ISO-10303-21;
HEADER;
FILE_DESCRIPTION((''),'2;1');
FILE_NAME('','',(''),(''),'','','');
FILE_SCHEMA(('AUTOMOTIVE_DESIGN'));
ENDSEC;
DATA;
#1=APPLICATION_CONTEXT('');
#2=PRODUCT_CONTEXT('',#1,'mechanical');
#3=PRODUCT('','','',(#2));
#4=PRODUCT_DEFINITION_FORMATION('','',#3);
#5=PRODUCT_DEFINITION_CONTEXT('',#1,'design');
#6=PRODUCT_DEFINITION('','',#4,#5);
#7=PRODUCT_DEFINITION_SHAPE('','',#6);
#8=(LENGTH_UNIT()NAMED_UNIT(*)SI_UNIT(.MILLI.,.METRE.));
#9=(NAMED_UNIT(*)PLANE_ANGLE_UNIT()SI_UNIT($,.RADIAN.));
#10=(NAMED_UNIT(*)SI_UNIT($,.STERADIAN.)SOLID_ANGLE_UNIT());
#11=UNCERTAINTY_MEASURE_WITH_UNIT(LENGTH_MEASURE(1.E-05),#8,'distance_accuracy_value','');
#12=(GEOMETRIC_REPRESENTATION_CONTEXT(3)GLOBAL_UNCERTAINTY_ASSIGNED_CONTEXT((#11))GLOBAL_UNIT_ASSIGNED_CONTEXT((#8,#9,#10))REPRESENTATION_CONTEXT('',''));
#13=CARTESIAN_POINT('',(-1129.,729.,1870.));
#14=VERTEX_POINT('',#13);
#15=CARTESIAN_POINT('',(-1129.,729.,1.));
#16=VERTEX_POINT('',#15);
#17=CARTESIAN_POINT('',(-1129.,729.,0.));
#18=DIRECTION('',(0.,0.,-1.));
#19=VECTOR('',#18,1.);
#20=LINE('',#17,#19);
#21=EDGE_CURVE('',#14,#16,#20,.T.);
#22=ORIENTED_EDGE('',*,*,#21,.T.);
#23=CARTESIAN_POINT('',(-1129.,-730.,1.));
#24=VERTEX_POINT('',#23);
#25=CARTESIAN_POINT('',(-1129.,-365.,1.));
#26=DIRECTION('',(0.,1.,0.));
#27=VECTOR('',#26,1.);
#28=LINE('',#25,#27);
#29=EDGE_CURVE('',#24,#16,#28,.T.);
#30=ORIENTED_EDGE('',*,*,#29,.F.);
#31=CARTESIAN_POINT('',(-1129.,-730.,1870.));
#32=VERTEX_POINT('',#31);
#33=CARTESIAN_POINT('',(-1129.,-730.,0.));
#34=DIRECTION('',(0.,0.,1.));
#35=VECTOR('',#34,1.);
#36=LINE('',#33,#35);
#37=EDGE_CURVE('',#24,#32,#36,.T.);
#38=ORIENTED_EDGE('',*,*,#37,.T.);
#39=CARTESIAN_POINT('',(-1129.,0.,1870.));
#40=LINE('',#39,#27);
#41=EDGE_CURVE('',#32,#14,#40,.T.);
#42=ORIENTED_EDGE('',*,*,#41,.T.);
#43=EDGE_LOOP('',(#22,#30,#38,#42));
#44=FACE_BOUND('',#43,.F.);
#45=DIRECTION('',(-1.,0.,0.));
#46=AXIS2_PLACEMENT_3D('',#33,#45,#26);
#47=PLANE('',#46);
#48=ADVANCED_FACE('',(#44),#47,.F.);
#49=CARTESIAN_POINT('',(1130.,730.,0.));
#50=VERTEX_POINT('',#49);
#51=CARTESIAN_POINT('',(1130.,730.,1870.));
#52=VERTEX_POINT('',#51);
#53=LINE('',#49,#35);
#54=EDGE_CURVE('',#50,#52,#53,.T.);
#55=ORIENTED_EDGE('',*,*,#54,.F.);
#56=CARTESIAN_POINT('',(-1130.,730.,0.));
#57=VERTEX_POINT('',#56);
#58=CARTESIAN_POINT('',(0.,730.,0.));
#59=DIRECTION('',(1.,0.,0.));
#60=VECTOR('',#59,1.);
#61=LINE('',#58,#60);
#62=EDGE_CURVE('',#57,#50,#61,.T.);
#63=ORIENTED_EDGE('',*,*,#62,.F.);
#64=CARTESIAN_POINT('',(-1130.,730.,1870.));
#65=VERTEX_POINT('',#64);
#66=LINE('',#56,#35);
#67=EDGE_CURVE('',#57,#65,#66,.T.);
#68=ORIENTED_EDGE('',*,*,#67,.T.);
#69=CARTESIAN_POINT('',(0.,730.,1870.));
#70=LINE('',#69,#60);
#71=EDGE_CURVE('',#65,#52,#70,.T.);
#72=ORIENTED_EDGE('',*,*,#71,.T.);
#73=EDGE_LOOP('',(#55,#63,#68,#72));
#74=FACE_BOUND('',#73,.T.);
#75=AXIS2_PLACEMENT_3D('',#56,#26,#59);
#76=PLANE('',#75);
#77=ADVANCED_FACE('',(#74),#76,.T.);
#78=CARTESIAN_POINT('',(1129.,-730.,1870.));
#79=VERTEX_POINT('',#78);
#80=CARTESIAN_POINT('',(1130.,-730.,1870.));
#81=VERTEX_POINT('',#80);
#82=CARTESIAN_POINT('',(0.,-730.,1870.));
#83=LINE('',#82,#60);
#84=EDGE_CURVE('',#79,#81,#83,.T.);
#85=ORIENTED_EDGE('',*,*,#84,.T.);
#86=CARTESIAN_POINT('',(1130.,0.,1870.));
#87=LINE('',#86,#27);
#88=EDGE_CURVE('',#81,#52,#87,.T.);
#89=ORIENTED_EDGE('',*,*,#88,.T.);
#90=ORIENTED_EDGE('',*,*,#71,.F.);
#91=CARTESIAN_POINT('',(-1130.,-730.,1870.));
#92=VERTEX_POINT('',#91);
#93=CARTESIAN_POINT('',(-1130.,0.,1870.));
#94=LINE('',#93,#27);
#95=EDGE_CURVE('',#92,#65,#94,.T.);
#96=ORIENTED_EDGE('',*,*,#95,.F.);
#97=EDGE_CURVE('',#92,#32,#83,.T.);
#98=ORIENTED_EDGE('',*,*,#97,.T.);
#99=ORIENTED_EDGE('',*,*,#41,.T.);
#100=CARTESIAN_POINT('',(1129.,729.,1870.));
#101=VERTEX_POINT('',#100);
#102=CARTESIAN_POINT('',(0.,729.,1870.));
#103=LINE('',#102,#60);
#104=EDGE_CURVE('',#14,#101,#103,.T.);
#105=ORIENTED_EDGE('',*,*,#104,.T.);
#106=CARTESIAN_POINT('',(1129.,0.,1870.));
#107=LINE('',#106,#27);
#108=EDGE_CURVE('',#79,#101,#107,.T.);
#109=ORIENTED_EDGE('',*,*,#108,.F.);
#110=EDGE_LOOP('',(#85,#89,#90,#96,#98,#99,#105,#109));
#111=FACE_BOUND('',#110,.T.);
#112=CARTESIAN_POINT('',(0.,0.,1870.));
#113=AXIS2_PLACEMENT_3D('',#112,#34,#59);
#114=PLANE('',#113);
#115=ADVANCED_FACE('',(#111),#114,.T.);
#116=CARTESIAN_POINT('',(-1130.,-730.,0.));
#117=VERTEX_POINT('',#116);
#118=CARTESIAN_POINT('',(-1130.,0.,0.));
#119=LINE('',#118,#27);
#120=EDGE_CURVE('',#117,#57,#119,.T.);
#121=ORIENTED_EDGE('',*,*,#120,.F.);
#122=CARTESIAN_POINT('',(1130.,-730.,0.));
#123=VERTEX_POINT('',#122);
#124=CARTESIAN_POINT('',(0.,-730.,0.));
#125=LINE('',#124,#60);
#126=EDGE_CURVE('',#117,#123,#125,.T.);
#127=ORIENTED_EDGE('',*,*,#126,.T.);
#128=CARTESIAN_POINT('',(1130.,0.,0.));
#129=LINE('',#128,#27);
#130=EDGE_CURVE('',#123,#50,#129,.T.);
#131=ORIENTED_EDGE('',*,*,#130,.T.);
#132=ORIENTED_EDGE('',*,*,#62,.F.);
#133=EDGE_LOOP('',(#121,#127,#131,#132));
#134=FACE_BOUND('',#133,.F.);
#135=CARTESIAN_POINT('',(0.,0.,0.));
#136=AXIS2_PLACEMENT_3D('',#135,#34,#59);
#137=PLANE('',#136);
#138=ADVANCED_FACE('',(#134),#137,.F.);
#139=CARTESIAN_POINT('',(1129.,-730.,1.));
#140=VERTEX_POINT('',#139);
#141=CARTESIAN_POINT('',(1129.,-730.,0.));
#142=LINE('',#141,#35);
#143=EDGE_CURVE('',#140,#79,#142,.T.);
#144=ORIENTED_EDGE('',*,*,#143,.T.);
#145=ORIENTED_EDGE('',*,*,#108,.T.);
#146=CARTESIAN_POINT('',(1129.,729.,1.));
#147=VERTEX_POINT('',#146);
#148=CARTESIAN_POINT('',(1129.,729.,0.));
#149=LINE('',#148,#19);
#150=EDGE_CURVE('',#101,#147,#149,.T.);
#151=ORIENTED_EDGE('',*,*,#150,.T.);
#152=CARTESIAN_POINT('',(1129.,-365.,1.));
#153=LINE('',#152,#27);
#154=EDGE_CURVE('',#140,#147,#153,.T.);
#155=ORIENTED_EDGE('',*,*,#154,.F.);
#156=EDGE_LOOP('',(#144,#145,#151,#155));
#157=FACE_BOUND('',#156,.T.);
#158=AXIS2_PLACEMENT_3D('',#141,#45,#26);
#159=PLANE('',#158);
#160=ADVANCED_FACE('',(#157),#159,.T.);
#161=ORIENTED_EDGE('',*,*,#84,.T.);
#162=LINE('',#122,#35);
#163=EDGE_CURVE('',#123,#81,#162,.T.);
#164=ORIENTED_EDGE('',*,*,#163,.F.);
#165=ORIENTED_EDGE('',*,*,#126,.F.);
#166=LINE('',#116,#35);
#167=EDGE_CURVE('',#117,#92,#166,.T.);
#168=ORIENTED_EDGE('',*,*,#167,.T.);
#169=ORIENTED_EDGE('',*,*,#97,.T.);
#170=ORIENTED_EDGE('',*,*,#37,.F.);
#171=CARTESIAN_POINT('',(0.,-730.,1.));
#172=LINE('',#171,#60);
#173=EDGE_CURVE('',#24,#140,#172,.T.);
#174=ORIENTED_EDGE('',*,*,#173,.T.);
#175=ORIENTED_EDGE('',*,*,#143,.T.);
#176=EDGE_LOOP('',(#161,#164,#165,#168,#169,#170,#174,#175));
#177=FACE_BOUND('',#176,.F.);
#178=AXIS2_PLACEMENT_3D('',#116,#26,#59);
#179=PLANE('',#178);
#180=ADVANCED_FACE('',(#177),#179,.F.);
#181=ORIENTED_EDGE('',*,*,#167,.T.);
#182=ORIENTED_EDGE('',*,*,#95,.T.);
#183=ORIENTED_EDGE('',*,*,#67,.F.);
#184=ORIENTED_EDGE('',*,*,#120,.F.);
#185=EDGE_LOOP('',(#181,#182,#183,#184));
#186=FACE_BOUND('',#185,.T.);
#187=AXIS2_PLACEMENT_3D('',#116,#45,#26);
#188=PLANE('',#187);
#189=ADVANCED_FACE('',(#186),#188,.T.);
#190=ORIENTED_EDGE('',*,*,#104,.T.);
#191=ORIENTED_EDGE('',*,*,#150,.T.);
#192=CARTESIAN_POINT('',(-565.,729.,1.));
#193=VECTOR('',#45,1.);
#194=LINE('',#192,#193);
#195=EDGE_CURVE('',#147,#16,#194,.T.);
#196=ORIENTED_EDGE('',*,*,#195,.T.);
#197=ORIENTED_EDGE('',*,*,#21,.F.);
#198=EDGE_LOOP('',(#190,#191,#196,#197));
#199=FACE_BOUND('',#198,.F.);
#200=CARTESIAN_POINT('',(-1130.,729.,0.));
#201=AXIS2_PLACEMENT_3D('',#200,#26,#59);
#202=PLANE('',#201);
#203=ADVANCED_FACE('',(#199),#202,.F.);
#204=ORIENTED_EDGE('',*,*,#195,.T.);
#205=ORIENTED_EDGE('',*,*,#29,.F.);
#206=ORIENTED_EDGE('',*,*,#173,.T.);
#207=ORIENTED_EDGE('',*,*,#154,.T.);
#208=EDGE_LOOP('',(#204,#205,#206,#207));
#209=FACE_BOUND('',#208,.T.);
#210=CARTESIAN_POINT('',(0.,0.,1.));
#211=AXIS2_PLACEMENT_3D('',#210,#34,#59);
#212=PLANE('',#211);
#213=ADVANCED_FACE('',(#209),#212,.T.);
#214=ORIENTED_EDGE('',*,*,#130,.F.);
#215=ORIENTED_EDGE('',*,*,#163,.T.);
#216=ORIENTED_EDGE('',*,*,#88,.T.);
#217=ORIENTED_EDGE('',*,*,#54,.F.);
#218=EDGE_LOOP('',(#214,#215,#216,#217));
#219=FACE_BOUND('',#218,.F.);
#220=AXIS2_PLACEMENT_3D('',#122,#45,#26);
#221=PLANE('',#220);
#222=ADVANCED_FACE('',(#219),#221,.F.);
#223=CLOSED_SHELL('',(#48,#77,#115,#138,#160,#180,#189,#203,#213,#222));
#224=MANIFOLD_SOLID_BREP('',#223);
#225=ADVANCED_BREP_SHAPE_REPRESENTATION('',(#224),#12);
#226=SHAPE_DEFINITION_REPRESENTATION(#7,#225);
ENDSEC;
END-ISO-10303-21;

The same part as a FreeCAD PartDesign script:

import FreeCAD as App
import Part
import Sketcher

V = App.Vector
Q = App.Units.Quantity


def faces_at(feature, points):
    """Names of the faces that lie closest to the given points."""
    faces = feature.Shape.Faces
    near = lambda p: min(range(len(faces)), key=lambda i: faces[i].distToShape(Part.Vertex(*p))[0])
    return sorted({f"Face{near(p) + 1}" for p in points})


def add_polygon(sketch, points):
    """Adds a closed chain of lines whose ends are joined by coincident constraints."""
    first, n = sketch.GeometryCount, len(points)
    for a, b in zip(points, points[1:] + points[:1]):
        sketch.addGeometry(Part.LineSegment(App.Vector(*a, 0), App.Vector(*b, 0)), False)
    for i in range(n):
        sketch.addConstraint(Sketcher.Constraint("Coincident", first + i, 2, first + (i + 1) % n, 1))

doc = App.newDocument("Part")
params = doc.addObject("Spreadsheet::Sheet", "Params")
for row, (alias, value) in enumerate([
    ("sketch1_width", "2260 mm"),
    ("sketch1_height", "1460 mm"),
    ("pad1_length", "1870 mm"),
    ("thickness_wall", "1 mm"),
], start=1):
    params.set(f"A{row}", alias)
    params.set(f"B{row}", "=" + value)
    params.setAlias(f"B{row}", alias)

body = doc.addObject("PartDesign::Body", "Body")

# Sketch on XY plane
sketch1 = doc.addObject("Sketcher::SketchObject", "Sketch")
body.addObject(sketch1)
sketch1.AttachmentSupport = (doc.XY_Plane, [""])
sketch1.MapMode = "FlatFace"
add_polygon(sketch1, [(-1130, 730), (-1130, -730), (1130, -730), (1130, 730)])  # lines 0-3
sketch1.addConstraint([
    Sketcher.Constraint("Vertical", 0),
    Sketcher.Constraint("Horizontal", 1),
    Sketcher.Constraint("Vertical", 2),
    Sketcher.Constraint("Horizontal", 3),
    Sketcher.Constraint("Symmetric", 0, 2, 2, 2, -1, 1),
    Sketcher.Constraint("DistanceX", 1, 1, 1, 2, Q("2260 mm")),
    Sketcher.Constraint("DistanceY", 0, 2, 0, 1, Q("1460 mm")),
])
sketch1.setExpression("Constraints[9]", "Params.sketch1_width")
sketch1.setExpression("Constraints[10]", "Params.sketch1_height")
pad1 = doc.addObject("PartDesign::Pad", "Pad")
body.addObject(pad1)
pad1.Profile = sketch1
pad1.setExpression("Length", "Params.pad1_length")
doc.recompute()

thickness = doc.addObject("PartDesign::Thickness", "Thickness")
body.addObject(thickness)
thickness.Base = (pad1, faces_at(pad1, [(0, 0, 1870), (0, -730, 935)]))
thickness.setExpression("Value", "Params.thickness_wall")
thickness.Reversed = True
thickness.Join = "Arc"

doc.recompute()
